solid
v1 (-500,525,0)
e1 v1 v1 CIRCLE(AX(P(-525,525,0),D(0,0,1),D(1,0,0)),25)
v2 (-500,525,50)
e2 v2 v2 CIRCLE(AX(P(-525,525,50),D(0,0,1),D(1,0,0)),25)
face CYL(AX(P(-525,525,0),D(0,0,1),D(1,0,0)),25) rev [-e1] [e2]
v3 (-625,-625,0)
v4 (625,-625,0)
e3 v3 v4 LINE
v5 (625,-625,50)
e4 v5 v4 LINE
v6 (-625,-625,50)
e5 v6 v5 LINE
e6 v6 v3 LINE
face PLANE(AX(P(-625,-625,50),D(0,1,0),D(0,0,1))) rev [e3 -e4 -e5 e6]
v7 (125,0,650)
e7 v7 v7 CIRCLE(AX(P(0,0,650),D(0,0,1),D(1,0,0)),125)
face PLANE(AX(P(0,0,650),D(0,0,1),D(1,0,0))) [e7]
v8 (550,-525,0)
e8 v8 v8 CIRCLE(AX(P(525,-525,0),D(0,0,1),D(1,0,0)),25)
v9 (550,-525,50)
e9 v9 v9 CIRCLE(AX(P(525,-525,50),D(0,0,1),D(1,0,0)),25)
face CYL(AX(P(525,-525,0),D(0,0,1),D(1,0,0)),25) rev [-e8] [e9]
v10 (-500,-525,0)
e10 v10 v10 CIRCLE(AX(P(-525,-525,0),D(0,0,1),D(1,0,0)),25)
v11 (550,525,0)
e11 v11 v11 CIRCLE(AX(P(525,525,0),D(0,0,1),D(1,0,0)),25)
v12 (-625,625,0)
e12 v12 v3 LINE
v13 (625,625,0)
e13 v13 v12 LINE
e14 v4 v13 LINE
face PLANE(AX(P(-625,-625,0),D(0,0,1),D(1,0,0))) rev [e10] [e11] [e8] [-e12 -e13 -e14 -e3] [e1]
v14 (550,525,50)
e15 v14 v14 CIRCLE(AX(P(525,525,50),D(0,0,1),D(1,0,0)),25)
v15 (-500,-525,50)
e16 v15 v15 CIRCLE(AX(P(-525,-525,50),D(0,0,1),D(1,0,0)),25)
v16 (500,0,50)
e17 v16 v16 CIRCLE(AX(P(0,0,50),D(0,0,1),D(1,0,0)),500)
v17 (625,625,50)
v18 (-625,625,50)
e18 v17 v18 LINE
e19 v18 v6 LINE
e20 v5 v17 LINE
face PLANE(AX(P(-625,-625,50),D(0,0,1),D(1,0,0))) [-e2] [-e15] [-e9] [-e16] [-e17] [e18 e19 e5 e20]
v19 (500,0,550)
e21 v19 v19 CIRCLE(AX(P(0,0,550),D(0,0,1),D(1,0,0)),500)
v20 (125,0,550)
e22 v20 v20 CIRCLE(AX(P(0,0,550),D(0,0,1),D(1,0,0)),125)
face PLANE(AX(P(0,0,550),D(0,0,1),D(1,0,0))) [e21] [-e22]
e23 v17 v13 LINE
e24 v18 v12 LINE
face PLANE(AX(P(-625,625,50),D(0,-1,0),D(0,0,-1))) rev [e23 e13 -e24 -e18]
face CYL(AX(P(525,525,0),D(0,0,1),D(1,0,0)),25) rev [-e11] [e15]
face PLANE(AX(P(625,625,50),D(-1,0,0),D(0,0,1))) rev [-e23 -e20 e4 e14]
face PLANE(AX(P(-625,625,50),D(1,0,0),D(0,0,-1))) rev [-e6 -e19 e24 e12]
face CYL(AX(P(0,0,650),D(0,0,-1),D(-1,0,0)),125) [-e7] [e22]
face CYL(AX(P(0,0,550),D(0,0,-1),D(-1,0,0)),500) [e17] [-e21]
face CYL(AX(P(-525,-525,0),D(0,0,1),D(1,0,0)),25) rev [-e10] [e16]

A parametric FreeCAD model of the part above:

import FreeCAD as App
import Part
import Sketcher

V = App.Vector
Q = App.Units.Quantity


def add_polygon(sketch, points):
    """Adds a closed chain of lines whose ends are joined by coincident constraints."""
    first, n = sketch.GeometryCount, len(points)
    for a, b in zip(points, points[1:] + points[:1]):
        sketch.addGeometry(Part.LineSegment(App.Vector(*a, 0), App.Vector(*b, 0)), False)
    for i in range(n):
        sketch.addConstraint(Sketcher.Constraint("Coincident", first + i, 2, first + (i + 1) % n, 1))

doc = App.newDocument("Part")
body = doc.addObject("PartDesign::Body", "Body")

sketch1 = body.newObject("Sketcher::SketchObject", "Sketch")
sketch1.AttachmentSupport = (doc.getObject("XY_Plane"), [""])
sketch1.MapMode = "FlatFace"
add_polygon(sketch1, [(-625, 625), (-625, -625), (625, -625), (625, 625)])
sketch1.addConstraint(Sketcher.Constraint("Vertical", 0))
sketch1.addConstraint(Sketcher.Constraint("Horizontal", 1))
sketch1.addConstraint(Sketcher.Constraint("Vertical", 2))
sketch1.addConstraint(Sketcher.Constraint("Horizontal", 3))
sketch1.addConstraint(Sketcher.Constraint("Symmetric", 0, 2, 2, 2, -1, 1))
sketch1.addConstraint(Sketcher.Constraint("Equal", 3, 0))
sketch1.addConstraint(Sketcher.Constraint("DistanceX", 1, 1, 1, 2, Q("1250 mm")))
pad1 = body.newObject("PartDesign::Pad", "Pad")
pad1.Profile = sketch1
pad1.Length = 50

sketch2 = body.newObject("Sketcher::SketchObject", "Sketch001")
sketch2.AttachmentSupport = (doc.getObject("XY_Plane"), [""])
sketch2.MapMode = "FlatFace"
sketch2.AttachmentOffset = App.Placement(V(0, 0, 50), App.Rotation())
sketch2.addGeometry(Part.Circle(V(0, 0, 0), V(0, 0, 1), 500), False)
sketch2.addConstraint(Sketcher.Constraint("Coincident", 0, 3, -1, 1))
sketch2.addConstraint(Sketcher.Constraint("Diameter", 0, Q("1000 mm")))
pad2 = body.newObject("PartDesign::Pad", "Pad001")
pad2.Profile = sketch2
pad2.Length = 500

sketch3 = body.newObject("Sketcher::SketchObject", "Sketch002")
sketch3.AttachmentSupport = (doc.getObject("XY_Plane"), [""])
sketch3.MapMode = "FlatFace"
sketch3.AttachmentOffset = App.Placement(V(0, 0, 50), App.Rotation())
sketch3.addGeometry(Part.Circle(V(-525, 525, 0), V(0, 0, 1), 25), False)
sketch3.addGeometry(Part.Circle(V(-525, -525, 0), V(0, 0, 1), 25), False)
sketch3.addGeometry(Part.Circle(V(525, -525, 0), V(0, 0, 1), 25), False)
sketch3.addGeometry(Part.Circle(V(525, 525, 0), V(0, 0, 1), 25), False)
sketch3.addConstraint(Sketcher.Constraint("Equal", 0, 1))
sketch3.addConstraint(Sketcher.Constraint("Equal", 1, 2))
sketch3.addConstraint(Sketcher.Constraint("Equal", 2, 3))
sketch3.addConstraint(Sketcher.Constraint("Symmetric", 0, 3, 2, 3, -1, 1))
sketch3.addConstraint(Sketcher.Constraint("Symmetric", 1, 3, 3, 3, -1, 1))
sketch3.addConstraint(Sketcher.Constraint("Symmetric", 1, 3, 2, 3, -2))
sketch3.addConstraint(Sketcher.Constraint("Diameter", 0, Q("50 mm")))
sketch3.addConstraint(Sketcher.Constraint("DistanceX", 0, 3, -1, 1, Q("525 mm")))
sketch3.addConstraint(Sketcher.Constraint("DistanceY", -1, 1, 0, 3, Q("525 mm")))
pocket1 = body.newObject("PartDesign::Pocket", "Pocket")
pocket1.Profile = sketch3
pocket1.Type = "ThroughAll"

sketch4 = body.newObject("Sketcher::SketchObject", "Sketch003")
sketch4.AttachmentSupport = (doc.getObject("XY_Plane"), [""])
sketch4.MapMode = "FlatFace"
sketch4.AttachmentOffset = App.Placement(V(0, 0, 550), App.Rotation())
sketch4.addGeometry(Part.Circle(V(0, 0, 0), V(0, 0, 1), 125), False)
sketch4.addConstraint(Sketcher.Constraint("Coincident", 0, 3, -1, 1))
sketch4.addConstraint(Sketcher.Constraint("Diameter", 0, Q("250 mm")))
pad3 = body.newObject("PartDesign::Pad", "Pad002")
pad3.Profile = sketch4
pad3.Length = 100

doc.recompute()
